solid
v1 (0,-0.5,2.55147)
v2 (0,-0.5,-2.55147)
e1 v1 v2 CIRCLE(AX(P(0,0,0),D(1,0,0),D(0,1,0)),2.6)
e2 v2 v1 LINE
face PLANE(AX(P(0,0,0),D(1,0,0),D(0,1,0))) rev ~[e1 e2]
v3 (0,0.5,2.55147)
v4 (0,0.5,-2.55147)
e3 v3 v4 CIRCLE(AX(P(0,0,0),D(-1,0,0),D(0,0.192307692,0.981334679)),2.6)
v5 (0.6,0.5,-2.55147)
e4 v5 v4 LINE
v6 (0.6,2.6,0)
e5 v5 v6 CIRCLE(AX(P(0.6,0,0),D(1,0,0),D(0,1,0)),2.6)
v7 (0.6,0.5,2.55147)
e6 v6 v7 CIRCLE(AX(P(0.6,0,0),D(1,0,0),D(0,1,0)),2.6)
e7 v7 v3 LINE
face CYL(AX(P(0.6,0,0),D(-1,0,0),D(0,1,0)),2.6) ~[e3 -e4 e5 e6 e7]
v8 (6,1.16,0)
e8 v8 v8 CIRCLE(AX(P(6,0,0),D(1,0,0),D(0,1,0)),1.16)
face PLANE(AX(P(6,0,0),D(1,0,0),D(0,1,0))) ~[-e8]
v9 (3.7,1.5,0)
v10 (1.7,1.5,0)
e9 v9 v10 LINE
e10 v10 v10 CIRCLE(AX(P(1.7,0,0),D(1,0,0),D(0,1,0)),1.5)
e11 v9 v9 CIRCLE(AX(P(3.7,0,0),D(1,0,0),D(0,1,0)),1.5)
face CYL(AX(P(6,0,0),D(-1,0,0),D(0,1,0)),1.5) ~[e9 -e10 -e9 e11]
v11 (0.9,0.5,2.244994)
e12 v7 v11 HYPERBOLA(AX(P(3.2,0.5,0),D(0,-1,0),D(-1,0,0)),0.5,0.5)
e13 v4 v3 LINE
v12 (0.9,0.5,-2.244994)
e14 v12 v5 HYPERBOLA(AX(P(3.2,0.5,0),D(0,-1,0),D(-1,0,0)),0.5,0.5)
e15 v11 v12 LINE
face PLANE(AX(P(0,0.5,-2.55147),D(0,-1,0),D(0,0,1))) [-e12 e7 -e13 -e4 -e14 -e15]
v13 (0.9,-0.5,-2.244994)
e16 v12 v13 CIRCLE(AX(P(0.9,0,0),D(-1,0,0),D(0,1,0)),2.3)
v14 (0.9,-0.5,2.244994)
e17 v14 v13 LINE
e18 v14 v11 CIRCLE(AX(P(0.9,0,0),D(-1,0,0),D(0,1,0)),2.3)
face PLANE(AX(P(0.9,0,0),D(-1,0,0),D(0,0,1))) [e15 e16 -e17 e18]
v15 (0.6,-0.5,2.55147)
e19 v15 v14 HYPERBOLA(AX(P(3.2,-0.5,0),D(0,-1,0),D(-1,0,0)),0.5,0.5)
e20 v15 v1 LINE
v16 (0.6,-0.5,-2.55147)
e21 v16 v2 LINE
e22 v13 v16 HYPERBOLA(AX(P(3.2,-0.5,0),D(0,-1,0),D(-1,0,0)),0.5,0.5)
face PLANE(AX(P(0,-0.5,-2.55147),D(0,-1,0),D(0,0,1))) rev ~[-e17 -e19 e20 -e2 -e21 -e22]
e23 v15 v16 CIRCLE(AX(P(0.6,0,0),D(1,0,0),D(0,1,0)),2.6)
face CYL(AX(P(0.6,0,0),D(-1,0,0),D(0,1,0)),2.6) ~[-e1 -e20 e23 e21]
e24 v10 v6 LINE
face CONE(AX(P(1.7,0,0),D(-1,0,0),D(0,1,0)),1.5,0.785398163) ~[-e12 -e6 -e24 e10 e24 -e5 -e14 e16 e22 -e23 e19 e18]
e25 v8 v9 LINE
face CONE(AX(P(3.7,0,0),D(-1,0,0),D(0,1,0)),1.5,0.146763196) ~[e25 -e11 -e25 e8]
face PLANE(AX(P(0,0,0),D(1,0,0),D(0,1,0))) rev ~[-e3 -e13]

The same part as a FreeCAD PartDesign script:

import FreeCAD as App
import Part
import Sketcher
from FreeCAD import Vector
Q = App.Units.Quantity


def edges_at(feature, points):
    """Names of the edges that pass closest to the given points."""
    edges = feature.Shape.Edges
    near = lambda p: min(range(len(edges)), key=lambda i: edges[i].distToShape(Part.Vertex(*p))[0])
    return sorted({f"Edge{near(p) + 1}" for p in points})


def add_polygon(sketch, points):
    """Adds a closed chain of lines whose ends are joined by coincident constraints."""
    first, n = sketch.GeometryCount, len(points)
    for a, b in zip(points, points[1:] + points[:1]):
        sketch.addGeometry(Part.LineSegment(App.Vector(*a, 0), App.Vector(*b, 0)), False)
    for i in range(n):
        sketch.addConstraint(Sketcher.Constraint("Coincident", first + i, 2, first + (i + 1) % n, 1))

doc = App.newDocument("Part")
body = doc.addObject("PartDesign::Body", "Body")

sketch1 = body.newObject("Sketcher::SketchObject", "Sketch")
sketch1.AttachmentSupport = (doc.getObject("XY_Plane"), [""])
sketch1.MapMode = "FlatFace"
add_polygon(sketch1, [(0, 2.6), (0, 0), (6, 0), (6, 1.5), (1.7, 1.5), (0.6, 2.6)])
sketch1.addConstraint([
    Sketcher.Constraint("Vertical", 0),
    Sketcher.Constraint("Horizontal", 1),
    Sketcher.Constraint("Vertical", 2),
    Sketcher.Constraint("Horizontal", 3),
    Sketcher.Constraint("Horizontal", 5),
    Sketcher.Constraint("Coincident", 0, 2, -1, 1),
    Sketcher.Constraint("DistanceX", 1, 1, 1, 2, Q("6 mm")),
    Sketcher.Constraint("DistanceX", -1, 1, 3, 2, Q("1.7 mm")),
    Sketcher.Constraint("Angle", 4, Q("135 deg")),
    Sketcher.Constraint("DistanceX", 5, 2, 5, 1, Q("0.6 mm")),
    Sketcher.Constraint("DistanceY", 0, 2, 0, 1, Q("2.6 mm")),
])
revolution = body.newObject("PartDesign::Revolution", "Revolution")
revolution.Profile = sketch1
revolution.ReferenceAxis = (sketch1, ["H_Axis"])
revolution.Angle = 360

sketch2 = body.newObject("Sketcher::SketchObject", "Sketch001")
sketch2.AttachmentSupport = (doc.getObject("YZ_Plane"), [""])
sketch2.MapMode = "FlatFace"
add_polygon(sketch2, [(0.5, -2.6), (-0.5, -2.6), (-0.5, 2.6), (0.5, 2.6)])
sketch2.addConstraint([
    Sketcher.Constraint("Horizontal", 0),
    Sketcher.Constraint("Vertical", 1),
    Sketcher.Constraint("Horizontal", 2),
    Sketcher.Constraint("Vertical", 3),
    Sketcher.Constraint("Symmetric", 0, 2, 2, 2, -1, 1),
    Sketcher.Constraint("DistanceX", 0, 2, 0, 1, Q("1 mm")),
    Sketcher.Constraint("DistanceY", 1, 1, 1, 2, Q("5.2 mm")),
])
pocket1 = body.newObject("PartDesign::Pocket", "Pocket")
pocket1.Profile = sketch2
pocket1.Length = 0.9
pocket1.Reversed = True
doc.recompute()

chamfer = body.newObject("PartDesign::Chamfer", "Chamfer")
chamfer.Base = (pocket1, edges_at(pocket1, [(6, -1.5, 0)]))
chamfer.ChamferType = "Two distances"
chamfer.Size = 0.34
chamfer.Size2 = 2.3
chamfer.FlipDirection = True

doc.recompute()
